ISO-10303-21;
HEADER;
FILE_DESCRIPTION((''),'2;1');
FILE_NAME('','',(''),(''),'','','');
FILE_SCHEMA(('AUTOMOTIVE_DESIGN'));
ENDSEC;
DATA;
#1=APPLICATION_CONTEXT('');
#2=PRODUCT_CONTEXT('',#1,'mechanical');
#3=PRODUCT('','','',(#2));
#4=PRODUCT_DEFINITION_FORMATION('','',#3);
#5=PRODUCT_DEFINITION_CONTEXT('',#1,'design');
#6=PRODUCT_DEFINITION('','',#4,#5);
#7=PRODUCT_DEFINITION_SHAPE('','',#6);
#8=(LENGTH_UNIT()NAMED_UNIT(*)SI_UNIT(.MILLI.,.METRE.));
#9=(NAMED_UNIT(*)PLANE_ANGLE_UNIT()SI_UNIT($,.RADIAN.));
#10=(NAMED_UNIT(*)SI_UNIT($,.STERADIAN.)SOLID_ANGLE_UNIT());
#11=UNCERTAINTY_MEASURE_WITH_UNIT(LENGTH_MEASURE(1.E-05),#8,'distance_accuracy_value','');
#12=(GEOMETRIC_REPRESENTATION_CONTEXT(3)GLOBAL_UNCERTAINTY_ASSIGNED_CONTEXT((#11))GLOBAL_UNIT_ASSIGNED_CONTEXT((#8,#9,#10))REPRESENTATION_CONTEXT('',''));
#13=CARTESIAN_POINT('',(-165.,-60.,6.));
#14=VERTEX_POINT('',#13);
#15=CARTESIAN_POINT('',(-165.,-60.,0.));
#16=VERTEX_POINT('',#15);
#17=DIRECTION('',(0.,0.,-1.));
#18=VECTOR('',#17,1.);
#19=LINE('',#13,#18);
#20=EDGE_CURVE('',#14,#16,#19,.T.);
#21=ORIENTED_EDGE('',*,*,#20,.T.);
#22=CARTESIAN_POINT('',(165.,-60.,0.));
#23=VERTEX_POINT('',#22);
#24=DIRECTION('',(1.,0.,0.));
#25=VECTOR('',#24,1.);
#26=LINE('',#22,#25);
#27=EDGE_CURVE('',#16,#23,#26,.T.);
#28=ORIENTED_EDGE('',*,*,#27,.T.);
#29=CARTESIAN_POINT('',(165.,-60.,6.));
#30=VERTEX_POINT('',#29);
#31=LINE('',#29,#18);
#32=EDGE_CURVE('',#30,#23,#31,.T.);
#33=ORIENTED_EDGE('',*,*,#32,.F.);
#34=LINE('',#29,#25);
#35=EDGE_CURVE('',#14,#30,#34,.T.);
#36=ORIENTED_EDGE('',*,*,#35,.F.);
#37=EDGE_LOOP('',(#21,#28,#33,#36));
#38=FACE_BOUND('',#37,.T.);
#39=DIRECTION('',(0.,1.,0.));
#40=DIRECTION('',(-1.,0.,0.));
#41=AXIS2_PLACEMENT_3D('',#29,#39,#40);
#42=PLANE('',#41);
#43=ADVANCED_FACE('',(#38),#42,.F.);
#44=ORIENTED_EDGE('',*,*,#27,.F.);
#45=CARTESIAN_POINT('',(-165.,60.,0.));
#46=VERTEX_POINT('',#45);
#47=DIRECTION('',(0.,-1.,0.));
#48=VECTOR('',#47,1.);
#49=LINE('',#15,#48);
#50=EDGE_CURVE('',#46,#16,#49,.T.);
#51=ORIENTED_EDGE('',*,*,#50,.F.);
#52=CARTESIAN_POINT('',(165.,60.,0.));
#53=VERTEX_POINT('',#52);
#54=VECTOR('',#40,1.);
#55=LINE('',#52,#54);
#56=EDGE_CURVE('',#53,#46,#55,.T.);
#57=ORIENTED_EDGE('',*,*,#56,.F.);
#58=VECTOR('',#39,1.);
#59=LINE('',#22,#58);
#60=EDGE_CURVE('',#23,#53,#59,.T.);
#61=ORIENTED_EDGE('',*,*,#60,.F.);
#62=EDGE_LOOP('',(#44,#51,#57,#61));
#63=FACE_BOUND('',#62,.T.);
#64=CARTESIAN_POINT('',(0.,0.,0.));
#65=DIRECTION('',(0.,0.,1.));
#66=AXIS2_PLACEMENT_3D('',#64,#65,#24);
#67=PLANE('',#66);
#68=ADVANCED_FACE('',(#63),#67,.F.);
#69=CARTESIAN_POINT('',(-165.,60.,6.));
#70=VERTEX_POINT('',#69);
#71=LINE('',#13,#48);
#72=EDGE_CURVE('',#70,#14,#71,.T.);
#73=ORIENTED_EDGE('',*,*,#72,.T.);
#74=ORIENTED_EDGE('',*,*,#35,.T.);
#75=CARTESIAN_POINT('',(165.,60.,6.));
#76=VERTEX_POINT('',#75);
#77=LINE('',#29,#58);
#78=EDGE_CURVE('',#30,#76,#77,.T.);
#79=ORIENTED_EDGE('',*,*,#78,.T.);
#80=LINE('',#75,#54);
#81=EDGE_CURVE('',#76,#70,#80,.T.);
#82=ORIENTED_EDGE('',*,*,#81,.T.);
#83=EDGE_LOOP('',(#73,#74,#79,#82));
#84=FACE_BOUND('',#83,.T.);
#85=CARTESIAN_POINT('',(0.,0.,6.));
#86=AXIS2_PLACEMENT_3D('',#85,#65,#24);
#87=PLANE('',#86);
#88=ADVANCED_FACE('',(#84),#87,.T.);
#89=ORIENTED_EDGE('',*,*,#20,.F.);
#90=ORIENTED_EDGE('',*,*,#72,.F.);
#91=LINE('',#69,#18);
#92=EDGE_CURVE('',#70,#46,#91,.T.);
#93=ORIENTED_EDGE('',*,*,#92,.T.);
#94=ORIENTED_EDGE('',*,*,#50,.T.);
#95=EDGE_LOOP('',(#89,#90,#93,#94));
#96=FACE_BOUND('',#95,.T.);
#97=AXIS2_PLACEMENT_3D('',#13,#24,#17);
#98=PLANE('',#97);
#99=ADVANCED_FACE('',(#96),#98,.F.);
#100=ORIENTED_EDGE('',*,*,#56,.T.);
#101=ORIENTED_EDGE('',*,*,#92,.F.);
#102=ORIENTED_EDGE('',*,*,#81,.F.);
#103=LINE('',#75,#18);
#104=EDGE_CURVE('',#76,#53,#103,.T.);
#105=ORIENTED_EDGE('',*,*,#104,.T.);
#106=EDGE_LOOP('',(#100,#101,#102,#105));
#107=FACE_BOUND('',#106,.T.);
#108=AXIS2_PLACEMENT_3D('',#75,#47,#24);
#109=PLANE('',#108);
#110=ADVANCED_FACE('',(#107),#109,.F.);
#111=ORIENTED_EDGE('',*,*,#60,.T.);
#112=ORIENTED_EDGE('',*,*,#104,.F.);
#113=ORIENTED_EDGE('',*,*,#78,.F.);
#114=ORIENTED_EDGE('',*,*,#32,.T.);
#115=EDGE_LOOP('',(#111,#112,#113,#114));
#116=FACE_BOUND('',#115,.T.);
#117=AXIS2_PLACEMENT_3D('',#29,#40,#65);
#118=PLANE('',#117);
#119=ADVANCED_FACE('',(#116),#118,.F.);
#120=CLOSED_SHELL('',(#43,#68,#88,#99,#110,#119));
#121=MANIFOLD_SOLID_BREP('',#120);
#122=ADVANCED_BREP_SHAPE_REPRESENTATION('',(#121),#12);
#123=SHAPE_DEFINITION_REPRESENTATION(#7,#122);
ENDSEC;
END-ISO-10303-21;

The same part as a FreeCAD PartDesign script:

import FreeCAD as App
import Part
import Sketcher
from FreeCAD import Vector

doc = App.newDocument("Part")
body = doc.addObject("PartDesign::Body", "Body")

# Sketch on XY plane
sketch1 = body.newObject("Sketcher::SketchObject", "Sketch")
sketch1.AttachmentSupport = (doc.getObject("XY_Plane"), [""])
sketch1.MapMode = "FlatFace"
sketch1.addGeometry(Part.LineSegment(Vector(-165, 60, 0), Vector(-165, -60, 0)), False)
sketch1.addGeometry(Part.LineSegment(Vector(-165, -60, 0), Vector(165, -60, 0)), False)
sketch1.addGeometry(Part.LineSegment(Vector(165, -60, 0), Vector(165, 60, 0)), False)
sketch1.addGeometry(Part.LineSegment(Vector(165, 60, 0), Vector(-165, 60, 0)), False)
sketch1.addConstraint(Sketcher.Constraint("Coincident", 0, 2, 1, 1))
sketch1.addConstraint(Sketcher.Constraint("Coincident", 1, 2, 2, 1))
sketch1.addConstraint(Sketcher.Constraint("Coincident", 2, 2, 3, 1))
sketch1.addConstraint(Sketcher.Constraint("Coincident", 3, 2, 0, 1))
sketch1.addConstraint(Sketcher.Constraint("Vertical", 0))
sketch1.addConstraint(Sketcher.Constraint("Horizontal", 1))
sketch1.addConstraint(Sketcher.Constraint("Vertical", 2))
sketch1.addConstraint(Sketcher.Constraint("Horizontal", 3))
sketch1.addConstraint(Sketcher.Constraint("Symmetric", 0, 2, 2, 2, -1, 1))
sketch1.addConstraint(Sketcher.Constraint("DistanceX", 1, 1, 1, 2, 330.0))
sketch1.addConstraint(Sketcher.Constraint("DistanceY", 0, 2, 0, 1, 120.0))
pad1 = body.newObject("PartDesign::Pad", "Pad")
pad1.Profile = sketch1
pad1.Length = 6

doc.recompute()
